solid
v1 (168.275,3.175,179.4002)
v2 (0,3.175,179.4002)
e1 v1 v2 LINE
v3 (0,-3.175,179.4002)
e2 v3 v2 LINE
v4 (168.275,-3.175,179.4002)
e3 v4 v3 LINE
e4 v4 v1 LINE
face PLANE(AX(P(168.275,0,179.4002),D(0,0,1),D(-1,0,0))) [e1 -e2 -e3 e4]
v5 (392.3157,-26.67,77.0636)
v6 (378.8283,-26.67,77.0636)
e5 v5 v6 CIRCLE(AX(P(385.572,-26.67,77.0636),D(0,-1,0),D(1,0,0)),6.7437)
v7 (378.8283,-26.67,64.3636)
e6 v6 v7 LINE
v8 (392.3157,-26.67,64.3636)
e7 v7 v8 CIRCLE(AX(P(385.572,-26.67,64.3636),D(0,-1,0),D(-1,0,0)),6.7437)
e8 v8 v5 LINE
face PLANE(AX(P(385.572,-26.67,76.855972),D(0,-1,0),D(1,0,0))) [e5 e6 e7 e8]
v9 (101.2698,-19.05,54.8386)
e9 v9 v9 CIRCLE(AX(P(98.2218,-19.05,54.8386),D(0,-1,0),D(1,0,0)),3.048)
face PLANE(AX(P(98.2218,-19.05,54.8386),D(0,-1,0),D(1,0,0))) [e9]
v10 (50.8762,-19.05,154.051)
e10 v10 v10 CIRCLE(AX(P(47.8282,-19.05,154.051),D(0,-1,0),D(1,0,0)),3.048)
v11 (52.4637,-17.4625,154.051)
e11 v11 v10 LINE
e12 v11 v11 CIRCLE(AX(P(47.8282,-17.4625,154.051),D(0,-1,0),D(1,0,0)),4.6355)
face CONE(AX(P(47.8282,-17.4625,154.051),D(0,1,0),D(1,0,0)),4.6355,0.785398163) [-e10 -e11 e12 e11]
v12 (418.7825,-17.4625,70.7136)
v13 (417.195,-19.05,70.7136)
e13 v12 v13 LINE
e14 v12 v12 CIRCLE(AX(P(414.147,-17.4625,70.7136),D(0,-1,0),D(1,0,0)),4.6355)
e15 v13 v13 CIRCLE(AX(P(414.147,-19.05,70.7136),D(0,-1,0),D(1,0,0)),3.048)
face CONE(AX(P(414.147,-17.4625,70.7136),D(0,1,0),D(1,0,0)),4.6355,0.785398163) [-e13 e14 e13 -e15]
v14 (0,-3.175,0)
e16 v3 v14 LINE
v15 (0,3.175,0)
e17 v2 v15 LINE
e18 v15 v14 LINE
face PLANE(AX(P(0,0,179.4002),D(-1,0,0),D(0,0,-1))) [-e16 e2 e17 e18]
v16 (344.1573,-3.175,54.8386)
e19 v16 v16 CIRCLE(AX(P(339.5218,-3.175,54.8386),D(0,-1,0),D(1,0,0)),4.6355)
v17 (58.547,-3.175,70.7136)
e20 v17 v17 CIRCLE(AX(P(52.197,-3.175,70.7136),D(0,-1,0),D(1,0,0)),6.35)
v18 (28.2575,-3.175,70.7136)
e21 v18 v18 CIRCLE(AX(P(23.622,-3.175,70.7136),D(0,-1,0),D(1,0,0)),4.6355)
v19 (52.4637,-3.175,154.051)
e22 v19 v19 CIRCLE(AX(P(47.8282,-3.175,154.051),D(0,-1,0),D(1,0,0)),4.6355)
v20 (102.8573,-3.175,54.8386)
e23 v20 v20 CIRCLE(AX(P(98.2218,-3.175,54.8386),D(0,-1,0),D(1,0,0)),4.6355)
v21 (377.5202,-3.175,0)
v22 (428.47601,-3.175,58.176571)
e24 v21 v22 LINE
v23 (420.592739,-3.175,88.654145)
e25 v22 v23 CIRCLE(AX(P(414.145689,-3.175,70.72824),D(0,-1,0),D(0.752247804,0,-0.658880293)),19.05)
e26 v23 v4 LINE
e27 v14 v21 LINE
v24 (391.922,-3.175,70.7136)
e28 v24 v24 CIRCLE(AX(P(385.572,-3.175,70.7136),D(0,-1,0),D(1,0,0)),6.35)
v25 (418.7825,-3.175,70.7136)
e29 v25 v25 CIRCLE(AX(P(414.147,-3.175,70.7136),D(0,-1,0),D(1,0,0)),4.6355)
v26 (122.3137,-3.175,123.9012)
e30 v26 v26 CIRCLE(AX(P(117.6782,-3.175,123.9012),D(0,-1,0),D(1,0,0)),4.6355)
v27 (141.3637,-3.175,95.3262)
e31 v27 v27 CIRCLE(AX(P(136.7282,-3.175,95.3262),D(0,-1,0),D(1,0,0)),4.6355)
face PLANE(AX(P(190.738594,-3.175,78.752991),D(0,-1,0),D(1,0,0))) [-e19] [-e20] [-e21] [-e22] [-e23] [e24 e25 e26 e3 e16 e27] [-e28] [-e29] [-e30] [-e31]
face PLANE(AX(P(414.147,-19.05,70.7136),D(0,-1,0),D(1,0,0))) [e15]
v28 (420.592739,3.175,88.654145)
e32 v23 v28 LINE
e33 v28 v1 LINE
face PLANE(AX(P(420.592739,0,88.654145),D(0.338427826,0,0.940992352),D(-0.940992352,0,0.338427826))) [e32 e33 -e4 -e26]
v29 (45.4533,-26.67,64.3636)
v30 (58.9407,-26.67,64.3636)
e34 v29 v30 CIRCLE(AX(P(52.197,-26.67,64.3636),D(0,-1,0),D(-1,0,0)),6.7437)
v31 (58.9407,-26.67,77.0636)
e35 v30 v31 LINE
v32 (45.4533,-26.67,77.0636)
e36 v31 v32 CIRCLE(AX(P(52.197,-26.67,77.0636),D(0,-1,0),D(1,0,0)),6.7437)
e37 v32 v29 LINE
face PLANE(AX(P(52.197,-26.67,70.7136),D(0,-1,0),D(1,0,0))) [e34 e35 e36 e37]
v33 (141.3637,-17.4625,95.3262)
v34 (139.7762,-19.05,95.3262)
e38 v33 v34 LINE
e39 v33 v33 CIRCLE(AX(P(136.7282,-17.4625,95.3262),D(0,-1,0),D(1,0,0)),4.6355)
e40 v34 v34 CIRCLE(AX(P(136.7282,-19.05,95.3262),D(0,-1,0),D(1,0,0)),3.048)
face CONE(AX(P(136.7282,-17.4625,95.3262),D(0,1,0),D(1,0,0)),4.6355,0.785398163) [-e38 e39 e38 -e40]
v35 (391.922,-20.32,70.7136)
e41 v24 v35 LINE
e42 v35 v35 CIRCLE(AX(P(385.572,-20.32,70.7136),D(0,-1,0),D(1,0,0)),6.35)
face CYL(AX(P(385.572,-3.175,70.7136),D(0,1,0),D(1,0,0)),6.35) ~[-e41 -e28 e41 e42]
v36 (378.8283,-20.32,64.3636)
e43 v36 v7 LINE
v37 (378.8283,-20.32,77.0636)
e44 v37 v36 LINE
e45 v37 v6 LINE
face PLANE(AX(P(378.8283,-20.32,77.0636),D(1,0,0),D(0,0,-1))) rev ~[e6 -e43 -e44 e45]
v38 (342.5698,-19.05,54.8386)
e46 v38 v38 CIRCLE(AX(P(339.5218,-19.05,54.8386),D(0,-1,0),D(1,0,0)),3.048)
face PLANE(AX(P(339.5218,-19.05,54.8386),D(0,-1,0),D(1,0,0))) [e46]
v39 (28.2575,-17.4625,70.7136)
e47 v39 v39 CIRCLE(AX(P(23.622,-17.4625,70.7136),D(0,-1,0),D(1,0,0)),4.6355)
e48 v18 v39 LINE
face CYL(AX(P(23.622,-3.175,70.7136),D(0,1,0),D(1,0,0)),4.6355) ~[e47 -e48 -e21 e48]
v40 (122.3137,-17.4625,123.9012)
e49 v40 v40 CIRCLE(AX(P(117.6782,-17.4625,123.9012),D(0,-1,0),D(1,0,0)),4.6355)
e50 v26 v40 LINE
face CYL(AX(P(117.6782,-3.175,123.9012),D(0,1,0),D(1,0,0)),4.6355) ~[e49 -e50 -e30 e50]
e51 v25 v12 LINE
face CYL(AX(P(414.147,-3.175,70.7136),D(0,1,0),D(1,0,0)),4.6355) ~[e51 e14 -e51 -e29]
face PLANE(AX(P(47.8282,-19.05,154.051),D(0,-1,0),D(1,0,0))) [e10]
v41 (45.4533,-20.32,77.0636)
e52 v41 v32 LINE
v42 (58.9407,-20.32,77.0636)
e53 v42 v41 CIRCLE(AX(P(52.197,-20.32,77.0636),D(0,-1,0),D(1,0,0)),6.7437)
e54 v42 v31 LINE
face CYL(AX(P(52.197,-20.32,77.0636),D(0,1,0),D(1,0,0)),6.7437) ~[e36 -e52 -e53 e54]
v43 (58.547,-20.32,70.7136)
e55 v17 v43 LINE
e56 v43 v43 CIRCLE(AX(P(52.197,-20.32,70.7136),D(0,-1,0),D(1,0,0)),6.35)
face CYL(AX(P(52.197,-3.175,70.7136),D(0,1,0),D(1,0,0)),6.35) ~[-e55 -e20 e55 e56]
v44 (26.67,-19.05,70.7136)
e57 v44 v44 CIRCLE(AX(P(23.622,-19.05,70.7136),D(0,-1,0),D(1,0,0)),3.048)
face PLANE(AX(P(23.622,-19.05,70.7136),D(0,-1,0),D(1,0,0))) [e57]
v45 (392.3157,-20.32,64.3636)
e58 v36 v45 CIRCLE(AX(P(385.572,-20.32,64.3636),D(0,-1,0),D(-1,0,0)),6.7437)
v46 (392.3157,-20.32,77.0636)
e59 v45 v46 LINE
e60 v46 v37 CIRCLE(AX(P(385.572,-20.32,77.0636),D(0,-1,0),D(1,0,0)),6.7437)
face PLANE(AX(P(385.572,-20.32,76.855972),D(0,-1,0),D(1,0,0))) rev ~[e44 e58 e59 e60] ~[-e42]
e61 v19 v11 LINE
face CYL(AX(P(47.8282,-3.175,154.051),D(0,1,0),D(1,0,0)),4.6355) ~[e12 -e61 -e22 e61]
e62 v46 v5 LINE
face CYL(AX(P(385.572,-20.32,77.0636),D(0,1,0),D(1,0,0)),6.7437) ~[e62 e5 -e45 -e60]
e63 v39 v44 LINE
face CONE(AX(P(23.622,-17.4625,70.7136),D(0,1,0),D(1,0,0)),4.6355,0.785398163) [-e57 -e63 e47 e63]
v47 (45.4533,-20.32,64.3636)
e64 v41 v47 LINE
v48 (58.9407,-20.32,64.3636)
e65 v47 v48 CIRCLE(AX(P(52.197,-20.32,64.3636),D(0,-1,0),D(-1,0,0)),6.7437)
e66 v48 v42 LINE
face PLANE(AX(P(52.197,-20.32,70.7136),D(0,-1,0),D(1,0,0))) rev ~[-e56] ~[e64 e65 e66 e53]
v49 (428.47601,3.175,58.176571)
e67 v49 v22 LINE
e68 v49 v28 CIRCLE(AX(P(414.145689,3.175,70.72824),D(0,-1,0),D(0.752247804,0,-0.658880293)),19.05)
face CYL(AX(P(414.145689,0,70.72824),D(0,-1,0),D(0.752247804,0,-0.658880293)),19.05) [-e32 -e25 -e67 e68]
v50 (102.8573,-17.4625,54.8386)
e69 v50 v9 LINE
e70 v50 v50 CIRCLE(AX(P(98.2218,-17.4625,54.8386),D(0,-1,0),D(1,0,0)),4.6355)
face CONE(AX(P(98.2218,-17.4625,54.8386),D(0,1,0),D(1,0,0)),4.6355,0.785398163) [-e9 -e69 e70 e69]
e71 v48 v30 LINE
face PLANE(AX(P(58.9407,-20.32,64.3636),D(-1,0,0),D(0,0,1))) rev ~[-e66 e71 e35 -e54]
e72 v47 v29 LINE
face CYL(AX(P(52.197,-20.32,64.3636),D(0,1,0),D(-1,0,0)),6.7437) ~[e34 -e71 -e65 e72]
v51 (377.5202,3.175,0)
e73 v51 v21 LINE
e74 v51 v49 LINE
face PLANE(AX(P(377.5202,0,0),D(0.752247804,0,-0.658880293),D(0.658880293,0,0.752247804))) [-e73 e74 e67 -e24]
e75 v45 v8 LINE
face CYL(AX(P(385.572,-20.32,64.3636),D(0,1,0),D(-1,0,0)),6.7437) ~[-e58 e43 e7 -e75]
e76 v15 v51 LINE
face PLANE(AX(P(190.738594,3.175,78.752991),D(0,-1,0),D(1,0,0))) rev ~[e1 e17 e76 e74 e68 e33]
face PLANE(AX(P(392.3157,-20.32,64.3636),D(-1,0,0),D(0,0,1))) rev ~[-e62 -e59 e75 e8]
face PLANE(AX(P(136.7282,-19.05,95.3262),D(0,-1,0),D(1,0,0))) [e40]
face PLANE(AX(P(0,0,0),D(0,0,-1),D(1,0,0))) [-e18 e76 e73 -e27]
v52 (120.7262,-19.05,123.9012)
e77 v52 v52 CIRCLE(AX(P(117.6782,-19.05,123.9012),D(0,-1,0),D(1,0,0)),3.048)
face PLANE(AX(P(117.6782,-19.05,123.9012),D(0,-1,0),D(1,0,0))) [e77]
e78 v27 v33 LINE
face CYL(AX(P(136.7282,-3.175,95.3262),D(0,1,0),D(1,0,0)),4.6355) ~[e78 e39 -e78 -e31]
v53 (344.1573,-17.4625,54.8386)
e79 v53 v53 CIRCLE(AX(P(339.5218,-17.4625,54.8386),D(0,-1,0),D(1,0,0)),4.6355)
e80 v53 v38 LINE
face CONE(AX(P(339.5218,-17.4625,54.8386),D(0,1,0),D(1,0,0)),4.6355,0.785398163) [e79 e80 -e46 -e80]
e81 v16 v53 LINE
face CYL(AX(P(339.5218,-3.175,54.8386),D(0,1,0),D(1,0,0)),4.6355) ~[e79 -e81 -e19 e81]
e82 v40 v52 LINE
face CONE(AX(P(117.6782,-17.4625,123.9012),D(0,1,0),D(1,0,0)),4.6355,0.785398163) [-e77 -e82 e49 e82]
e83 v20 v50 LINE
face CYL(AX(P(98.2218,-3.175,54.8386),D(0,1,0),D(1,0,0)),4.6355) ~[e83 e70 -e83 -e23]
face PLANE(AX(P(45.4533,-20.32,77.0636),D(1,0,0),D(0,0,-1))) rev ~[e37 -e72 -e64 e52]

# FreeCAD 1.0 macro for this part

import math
import FreeCAD as App
import Part
import Sketcher
Q = App.Units.Quantity


def edges_at(feature, points):
    """Names of the edges that pass closest to the given points."""
    edges = feature.Shape.Edges
    near = lambda p: min(range(len(edges)), key=lambda i: edges[i].distToShape(Part.Vertex(*p))[0])
    return sorted({f"Edge{near(p) + 1}" for p in points})

doc = App.newDocument("Part")
body = doc.addObject("PartDesign::Body", "Body")

sketch1 = body.newObject("Sketcher::SketchObject", "Sketch")
sketch1.AttachmentSupport = (doc.getObject("XZ_Plane"), [""])
sketch1.MapMode = "FlatFace"
sketch1.addGeometry(Part.LineSegment(App.Vector(0, 179, 0), App.Vector(0, 0, 0)), False)
sketch1.addGeometry(Part.LineSegment(App.Vector(0, 0, 0), App.Vector(378, 0, 0)), False)
sketch1.addGeometry(Part.LineSegment(App.Vector(378, 0, 0), App.Vector(428, 58, 0)), False)
sketch1.addGeometry(Part.ArcOfCircle(Part.Circle(App.Vector(414, 71, 0), App.Vector(0, 0, 1), 19), math.radians(-41), math.radians(70)), False)
sketch1.addGeometry(Part.LineSegment(App.Vector(421, 89, 0), App.Vector(168, 179, 0)), False)
sketch1.addGeometry(Part.LineSegment(App.Vector(168, 179, 0), App.Vector(0, 179, 0)), False)
sketch1.addConstraint(Sketcher.Constraint("Coincident", 0, 2, 1, 1))
sketch1.addConstraint(Sketcher.Constraint("Coincident", 1, 2, 2, 1))
sketch1.addConstraint(Sketcher.Constraint("Tangent", 2, 2, 3, 1))
sketch1.addConstraint(Sketcher.Constraint("Tangent", 3, 2, 4, 1))
sketch1.addConstraint(Sketcher.Constraint("Coincident", 4, 2, 5, 1))
sketch1.addConstraint(Sketcher.Constraint("Coincident", 5, 2, 0, 1))
sketch1.addConstraint(Sketcher.Constraint("Vertical", 0))
sketch1.addConstraint(Sketcher.Constraint("Horizontal", 1))
sketch1.addConstraint(Sketcher.Constraint("Horizontal", 5))
sketch1.addConstraint(Sketcher.Constraint("Coincident", 0, 2, -1, 1))
sketch1.addConstraint(Sketcher.Constraint("Radius", 3, Q("0.75 in")))
sketch1.addConstraint(Sketcher.Constraint("DistanceX", 1, 1, 1, 2, Q("14.863 in")))
sketch1.addConstraint(Sketcher.Constraint("DistanceX", 5, 2, 5, 1, Q("6.625 in")))
sketch1.addConstraint(Sketcher.Constraint("DistanceY", 0, 2, 0, 1, Q("7.063 in")))
sketch1.addConstraint(Sketcher.Constraint("DistanceX", -1, 1, 3, 3, 414.145689))
sketch1.addConstraint(Sketcher.Constraint("DistanceY", -1, 1, 3, 3, 70.72824))
pad1 = body.newObject("PartDesign::Pad", "Pad")
pad1.Profile = sketch1
pad1.Length = Q("0.25 in")
pad1.Midplane = True

sketch2 = body.newObject("Sketcher::SketchObject", "Sketch001")
sketch2.AttachmentSupport = (doc.getObject("XZ_Plane"), [""])
sketch2.MapMode = "FlatFace"
sketch2.AttachmentOffset = App.Placement(App.Vector(0, 0, 0.125 * 25.4), App.Rotation())
sketch2.addGeometry(Part.Circle(App.Vector(23.6, 70.7, 0), App.Vector(0, 0, 1), 4.6), False)
sketch2.addGeometry(Part.Circle(App.Vector(98.2, 54.8, 0), App.Vector(0, 0, 1), 4.6), False)
sketch2.addGeometry(Part.Circle(App.Vector(339.5, 54.8, 0), App.Vector(0, 0, 1), 4.6), False)
sketch2.addGeometry(Part.Circle(App.Vector(136.7, 95.3, 0), App.Vector(0, 0, 1), 4.6), False)
sketch2.addGeometry(Part.Circle(App.Vector(47.8, 154.1, 0), App.Vector(0, 0, 1), 4.6), False)
sketch2.addGeometry(Part.Circle(App.Vector(117.7, 123.9, 0), App.Vector(0, 0, 1), 4.6), False)
sketch2.addGeometry(Part.Circle(App.Vector(414.1, 70.7, 0), App.Vector(0, 0, 1), 4.6), False)
sketch2.addConstraint(Sketcher.Constraint("Equal", 0, 1))
sketch2.addConstraint(Sketcher.Constraint("Equal", 1, 2))
sketch2.addConstraint(Sketcher.Constraint("Equal", 2, 3))
sketch2.addConstraint(Sketcher.Constraint("Equal", 3, 4))
sketch2.addConstraint(Sketcher.Constraint("Equal", 4, 5))
sketch2.addConstraint(Sketcher.Constraint("Equal", 5, 6))
sketch2.addConstraint(Sketcher.Constraint("Horizontal", 1, 3, 2, 3))
sketch2.addConstraint(Sketcher.Constraint("Horizontal", 0, 3, 6, 3))
sketch2.addConstraint(Sketcher.Constraint("Diameter", 0, Q("0.365 in")))
sketch2.addConstraint(Sketcher.Constraint("DistanceX", 1, 3, 2, 3, Q("9.5 in")))
sketch2.addConstraint(Sketcher.Constraint("DistanceX", 4, 3, 3, 3, Q("3.5 in")))
sketch2.addConstraint(Sketcher.Constraint("DistanceX", -1, 1, 0, 3, Q("0.93 in")))
sketch2.addConstraint(Sketcher.Constraint("DistanceX", 5, 3, 3, 3, Q("0.75 in")))
sketch2.addConstraint(Sketcher.Constraint("DistanceY", -1, 1, 0, 3, Q("2.784 in")))
sketch2.addConstraint(Sketcher.Constraint("DistanceX", -1, 1, 1, 3, Q("3.867 in")))
sketch2.addConstraint(Sketcher.Constraint("DistanceY", -1, 1, 1, 3, Q("2.159 in")))
sketch2.addConstraint(Sketcher.Constraint("DistanceX", -1, 1, 3, 3, Q("5.383 in")))
sketch2.addConstraint(Sketcher.Constraint("DistanceY", -1, 1, 3, 3, Q("3.753 in")))
sketch2.addConstraint(Sketcher.Constraint("DistanceY", -1, 1, 4, 3, Q("6.065 in")))
sketch2.addConstraint(Sketcher.Constraint("DistanceY", -1, 1, 5, 3, Q("4.878 in")))
sketch2.addConstraint(Sketcher.Constraint("DistanceX", -1, 1, 6, 3, Q("16.305 in")))
pad2 = body.newObject("PartDesign::Pad", "Pad001")
pad2.Profile = sketch2
pad2.Length = Q("0.625 in")
doc.recompute()

chamfer = body.newObject("PartDesign::Chamfer", "Chamfer")
chamfer.Base = (pad2, edges_at(pad2, [
    (18.986, -19.05, 70.714),
    (43.193, -19.05, 154.051),
    (93.586, -19.05, 54.839),
    (113.043, -19.05, 123.901),
    (132.093, -19.05, 95.326),
    (334.886, -19.05, 54.839),
    (409.512, -19.05, 70.714),
]))
chamfer.Size = Q("0.0625 in")

sketch3 = body.newObject("Sketcher::SketchObject", "Sketch002")
sketch3.AttachmentSupport = (doc.getObject("XZ_Plane"), [""])
sketch3.MapMode = "FlatFace"
sketch3.AttachmentOffset = App.Placement(App.Vector(0, 0, 0.125 * 25.4), App.Rotation())
sketch3.addGeometry(Part.Circle(App.Vector(386, 71, 0), App.Vector(0, 0, 1), 6), False)
sketch3.addGeometry(Part.Circle(App.Vector(52, 71, 0), App.Vector(0, 0, 1), 6), False)
sketch3.addConstraint(Sketcher.Constraint("Equal", 0, 1))
sketch3.addConstraint(Sketcher.Constraint("Horizontal", 0, 3, 1, 3))
sketch3.addConstraint(Sketcher.Constraint("Diameter", 0, Q("0.5 in")))
sketch3.addConstraint(Sketcher.Constraint("DistanceX", -1, 1, 0, 3, Q("15.18 in")))
sketch3.addConstraint(Sketcher.Constraint("DistanceY", -1, 1, 0, 3, Q("2.784 in")))
sketch3.addConstraint(Sketcher.Constraint("DistanceX", -1, 1, 1, 3, Q("2.055 in")))
pad3 = body.newObject("PartDesign::Pad", "Pad002")
pad3.Profile = sketch3
pad3.Length = Q("0.675 in")

sketch4 = body.newObject("Sketcher::SketchObject", "Sketch003")
sketch4.AttachmentSupport = (doc.getObject("XZ_Plane"), [""])
sketch4.MapMode = "FlatFace"
sketch4.AttachmentOffset = App.Placement(App.Vector(0, 0, 0.8 * 25.4), App.Rotation())
sketch4.addGeometry(Part.ArcOfCircle(Part.Circle(App.Vector(52, 77, 0), App.Vector(0, 0, 1), 7), math.radians(0), math.radians(180)), False)
sketch4.addGeometry(Part.LineSegment(App.Vector(45, 77, 0), App.Vector(45, 64, 0)), False)
sketch4.addGeometry(Part.ArcOfCircle(Part.Circle(App.Vector(52, 64, 0), App.Vector(0, 0, 1), 7), math.radians(180), math.radians(360)), False)
sketch4.addGeometry(Part.LineSegment(App.Vector(59, 64, 0), App.Vector(59, 77, 0)), False)
sketch4.addConstraint(Sketcher.Constraint("Tangent", 0, 2, 1, 1))
sketch4.addConstraint(Sketcher.Constraint("Tangent", 1, 2, 2, 1))
sketch4.addConstraint(Sketcher.Constraint("Tangent", 2, 2, 3, 1))
sketch4.addConstraint(Sketcher.Constraint("Tangent", 3, 2, 0, 1))
sketch4.addConstraint(Sketcher.Constraint("Vertical", 1))
sketch4.addConstraint(Sketcher.Constraint("Vertical", 3))
sketch4.addConstraint(Sketcher.Constraint("DistanceY", 1, 2, 1, 1, Q("0.5 in")))
sketch4.addConstraint(Sketcher.Constraint("Radius", 0, Q("0.2655 in")))
sketch4.addConstraint(Sketcher.Constraint("DistanceX", -1, 1, 0, 3, Q("2.055 in")))
sketch4.addConstraint(Sketcher.Constraint("DistanceY", -1, 1, 0, 3, Q("3.034 in")))
pad4 = body.newObject("PartDesign::Pad", "Pad003")
pad4.Profile = sketch4
pad4.Length = Q("0.25 in")

sketch5 = body.newObject("Sketcher::SketchObject", "Sketch004")
sketch5.AttachmentSupport = (doc.getObject("XZ_Plane"), [""])
sketch5.MapMode = "FlatFace"
sketch5.AttachmentOffset = App.Placement(App.Vector(0, 0, 0.8 * 25.4), App.Rotation())
sketch5.addGeometry(Part.ArcOfCircle(Part.Circle(App.Vector(386, 77, 0), App.Vector(0, 0, 1), 7), math.radians(0), math.radians(180)), False)
sketch5.addGeometry(Part.LineSegment(App.Vector(379, 77, 0), App.Vector(379, 64, 0)), False)
sketch5.addGeometry(Part.ArcOfCircle(Part.Circle(App.Vector(386, 64, 0), App.Vector(0, 0, 1), 7), math.radians(180), math.radians(360)), False)
sketch5.addGeometry(Part.LineSegment(App.Vector(392, 64, 0), App.Vector(392, 77, 0)), False)
sketch5.addConstraint(Sketcher.Constraint("Tangent", 0, 2, 1, 1))
sketch5.addConstraint(Sketcher.Constraint("Tangent", 1, 2, 2, 1))
sketch5.addConstraint(Sketcher.Constraint("Tangent", 2, 2, 3, 1))
sketch5.addConstraint(Sketcher.Constraint("Tangent", 3, 2, 0, 1))
sketch5.addConstraint(Sketcher.Constraint("Vertical", 1))
sketch5.addConstraint(Sketcher.Constraint("Vertical", 3))
sketch5.addConstraint(Sketcher.Constraint("DistanceY", 1, 2, 1, 1, Q("0.5 in")))
sketch5.addConstraint(Sketcher.Constraint("Radius", 0, Q("0.2655 in")))
sketch5.addConstraint(Sketcher.Constraint("DistanceX", -1, 1, 0, 3, Q("15.18 in")))
sketch5.addConstraint(Sketcher.Constraint("DistanceY", -1, 1, 0, 3, Q("3.034 in")))
pad5 = body.newObject("PartDesign::Pad", "Pad004")
pad5.Profile = sketch5
pad5.Length = Q("0.25 in")

doc.recompute()
